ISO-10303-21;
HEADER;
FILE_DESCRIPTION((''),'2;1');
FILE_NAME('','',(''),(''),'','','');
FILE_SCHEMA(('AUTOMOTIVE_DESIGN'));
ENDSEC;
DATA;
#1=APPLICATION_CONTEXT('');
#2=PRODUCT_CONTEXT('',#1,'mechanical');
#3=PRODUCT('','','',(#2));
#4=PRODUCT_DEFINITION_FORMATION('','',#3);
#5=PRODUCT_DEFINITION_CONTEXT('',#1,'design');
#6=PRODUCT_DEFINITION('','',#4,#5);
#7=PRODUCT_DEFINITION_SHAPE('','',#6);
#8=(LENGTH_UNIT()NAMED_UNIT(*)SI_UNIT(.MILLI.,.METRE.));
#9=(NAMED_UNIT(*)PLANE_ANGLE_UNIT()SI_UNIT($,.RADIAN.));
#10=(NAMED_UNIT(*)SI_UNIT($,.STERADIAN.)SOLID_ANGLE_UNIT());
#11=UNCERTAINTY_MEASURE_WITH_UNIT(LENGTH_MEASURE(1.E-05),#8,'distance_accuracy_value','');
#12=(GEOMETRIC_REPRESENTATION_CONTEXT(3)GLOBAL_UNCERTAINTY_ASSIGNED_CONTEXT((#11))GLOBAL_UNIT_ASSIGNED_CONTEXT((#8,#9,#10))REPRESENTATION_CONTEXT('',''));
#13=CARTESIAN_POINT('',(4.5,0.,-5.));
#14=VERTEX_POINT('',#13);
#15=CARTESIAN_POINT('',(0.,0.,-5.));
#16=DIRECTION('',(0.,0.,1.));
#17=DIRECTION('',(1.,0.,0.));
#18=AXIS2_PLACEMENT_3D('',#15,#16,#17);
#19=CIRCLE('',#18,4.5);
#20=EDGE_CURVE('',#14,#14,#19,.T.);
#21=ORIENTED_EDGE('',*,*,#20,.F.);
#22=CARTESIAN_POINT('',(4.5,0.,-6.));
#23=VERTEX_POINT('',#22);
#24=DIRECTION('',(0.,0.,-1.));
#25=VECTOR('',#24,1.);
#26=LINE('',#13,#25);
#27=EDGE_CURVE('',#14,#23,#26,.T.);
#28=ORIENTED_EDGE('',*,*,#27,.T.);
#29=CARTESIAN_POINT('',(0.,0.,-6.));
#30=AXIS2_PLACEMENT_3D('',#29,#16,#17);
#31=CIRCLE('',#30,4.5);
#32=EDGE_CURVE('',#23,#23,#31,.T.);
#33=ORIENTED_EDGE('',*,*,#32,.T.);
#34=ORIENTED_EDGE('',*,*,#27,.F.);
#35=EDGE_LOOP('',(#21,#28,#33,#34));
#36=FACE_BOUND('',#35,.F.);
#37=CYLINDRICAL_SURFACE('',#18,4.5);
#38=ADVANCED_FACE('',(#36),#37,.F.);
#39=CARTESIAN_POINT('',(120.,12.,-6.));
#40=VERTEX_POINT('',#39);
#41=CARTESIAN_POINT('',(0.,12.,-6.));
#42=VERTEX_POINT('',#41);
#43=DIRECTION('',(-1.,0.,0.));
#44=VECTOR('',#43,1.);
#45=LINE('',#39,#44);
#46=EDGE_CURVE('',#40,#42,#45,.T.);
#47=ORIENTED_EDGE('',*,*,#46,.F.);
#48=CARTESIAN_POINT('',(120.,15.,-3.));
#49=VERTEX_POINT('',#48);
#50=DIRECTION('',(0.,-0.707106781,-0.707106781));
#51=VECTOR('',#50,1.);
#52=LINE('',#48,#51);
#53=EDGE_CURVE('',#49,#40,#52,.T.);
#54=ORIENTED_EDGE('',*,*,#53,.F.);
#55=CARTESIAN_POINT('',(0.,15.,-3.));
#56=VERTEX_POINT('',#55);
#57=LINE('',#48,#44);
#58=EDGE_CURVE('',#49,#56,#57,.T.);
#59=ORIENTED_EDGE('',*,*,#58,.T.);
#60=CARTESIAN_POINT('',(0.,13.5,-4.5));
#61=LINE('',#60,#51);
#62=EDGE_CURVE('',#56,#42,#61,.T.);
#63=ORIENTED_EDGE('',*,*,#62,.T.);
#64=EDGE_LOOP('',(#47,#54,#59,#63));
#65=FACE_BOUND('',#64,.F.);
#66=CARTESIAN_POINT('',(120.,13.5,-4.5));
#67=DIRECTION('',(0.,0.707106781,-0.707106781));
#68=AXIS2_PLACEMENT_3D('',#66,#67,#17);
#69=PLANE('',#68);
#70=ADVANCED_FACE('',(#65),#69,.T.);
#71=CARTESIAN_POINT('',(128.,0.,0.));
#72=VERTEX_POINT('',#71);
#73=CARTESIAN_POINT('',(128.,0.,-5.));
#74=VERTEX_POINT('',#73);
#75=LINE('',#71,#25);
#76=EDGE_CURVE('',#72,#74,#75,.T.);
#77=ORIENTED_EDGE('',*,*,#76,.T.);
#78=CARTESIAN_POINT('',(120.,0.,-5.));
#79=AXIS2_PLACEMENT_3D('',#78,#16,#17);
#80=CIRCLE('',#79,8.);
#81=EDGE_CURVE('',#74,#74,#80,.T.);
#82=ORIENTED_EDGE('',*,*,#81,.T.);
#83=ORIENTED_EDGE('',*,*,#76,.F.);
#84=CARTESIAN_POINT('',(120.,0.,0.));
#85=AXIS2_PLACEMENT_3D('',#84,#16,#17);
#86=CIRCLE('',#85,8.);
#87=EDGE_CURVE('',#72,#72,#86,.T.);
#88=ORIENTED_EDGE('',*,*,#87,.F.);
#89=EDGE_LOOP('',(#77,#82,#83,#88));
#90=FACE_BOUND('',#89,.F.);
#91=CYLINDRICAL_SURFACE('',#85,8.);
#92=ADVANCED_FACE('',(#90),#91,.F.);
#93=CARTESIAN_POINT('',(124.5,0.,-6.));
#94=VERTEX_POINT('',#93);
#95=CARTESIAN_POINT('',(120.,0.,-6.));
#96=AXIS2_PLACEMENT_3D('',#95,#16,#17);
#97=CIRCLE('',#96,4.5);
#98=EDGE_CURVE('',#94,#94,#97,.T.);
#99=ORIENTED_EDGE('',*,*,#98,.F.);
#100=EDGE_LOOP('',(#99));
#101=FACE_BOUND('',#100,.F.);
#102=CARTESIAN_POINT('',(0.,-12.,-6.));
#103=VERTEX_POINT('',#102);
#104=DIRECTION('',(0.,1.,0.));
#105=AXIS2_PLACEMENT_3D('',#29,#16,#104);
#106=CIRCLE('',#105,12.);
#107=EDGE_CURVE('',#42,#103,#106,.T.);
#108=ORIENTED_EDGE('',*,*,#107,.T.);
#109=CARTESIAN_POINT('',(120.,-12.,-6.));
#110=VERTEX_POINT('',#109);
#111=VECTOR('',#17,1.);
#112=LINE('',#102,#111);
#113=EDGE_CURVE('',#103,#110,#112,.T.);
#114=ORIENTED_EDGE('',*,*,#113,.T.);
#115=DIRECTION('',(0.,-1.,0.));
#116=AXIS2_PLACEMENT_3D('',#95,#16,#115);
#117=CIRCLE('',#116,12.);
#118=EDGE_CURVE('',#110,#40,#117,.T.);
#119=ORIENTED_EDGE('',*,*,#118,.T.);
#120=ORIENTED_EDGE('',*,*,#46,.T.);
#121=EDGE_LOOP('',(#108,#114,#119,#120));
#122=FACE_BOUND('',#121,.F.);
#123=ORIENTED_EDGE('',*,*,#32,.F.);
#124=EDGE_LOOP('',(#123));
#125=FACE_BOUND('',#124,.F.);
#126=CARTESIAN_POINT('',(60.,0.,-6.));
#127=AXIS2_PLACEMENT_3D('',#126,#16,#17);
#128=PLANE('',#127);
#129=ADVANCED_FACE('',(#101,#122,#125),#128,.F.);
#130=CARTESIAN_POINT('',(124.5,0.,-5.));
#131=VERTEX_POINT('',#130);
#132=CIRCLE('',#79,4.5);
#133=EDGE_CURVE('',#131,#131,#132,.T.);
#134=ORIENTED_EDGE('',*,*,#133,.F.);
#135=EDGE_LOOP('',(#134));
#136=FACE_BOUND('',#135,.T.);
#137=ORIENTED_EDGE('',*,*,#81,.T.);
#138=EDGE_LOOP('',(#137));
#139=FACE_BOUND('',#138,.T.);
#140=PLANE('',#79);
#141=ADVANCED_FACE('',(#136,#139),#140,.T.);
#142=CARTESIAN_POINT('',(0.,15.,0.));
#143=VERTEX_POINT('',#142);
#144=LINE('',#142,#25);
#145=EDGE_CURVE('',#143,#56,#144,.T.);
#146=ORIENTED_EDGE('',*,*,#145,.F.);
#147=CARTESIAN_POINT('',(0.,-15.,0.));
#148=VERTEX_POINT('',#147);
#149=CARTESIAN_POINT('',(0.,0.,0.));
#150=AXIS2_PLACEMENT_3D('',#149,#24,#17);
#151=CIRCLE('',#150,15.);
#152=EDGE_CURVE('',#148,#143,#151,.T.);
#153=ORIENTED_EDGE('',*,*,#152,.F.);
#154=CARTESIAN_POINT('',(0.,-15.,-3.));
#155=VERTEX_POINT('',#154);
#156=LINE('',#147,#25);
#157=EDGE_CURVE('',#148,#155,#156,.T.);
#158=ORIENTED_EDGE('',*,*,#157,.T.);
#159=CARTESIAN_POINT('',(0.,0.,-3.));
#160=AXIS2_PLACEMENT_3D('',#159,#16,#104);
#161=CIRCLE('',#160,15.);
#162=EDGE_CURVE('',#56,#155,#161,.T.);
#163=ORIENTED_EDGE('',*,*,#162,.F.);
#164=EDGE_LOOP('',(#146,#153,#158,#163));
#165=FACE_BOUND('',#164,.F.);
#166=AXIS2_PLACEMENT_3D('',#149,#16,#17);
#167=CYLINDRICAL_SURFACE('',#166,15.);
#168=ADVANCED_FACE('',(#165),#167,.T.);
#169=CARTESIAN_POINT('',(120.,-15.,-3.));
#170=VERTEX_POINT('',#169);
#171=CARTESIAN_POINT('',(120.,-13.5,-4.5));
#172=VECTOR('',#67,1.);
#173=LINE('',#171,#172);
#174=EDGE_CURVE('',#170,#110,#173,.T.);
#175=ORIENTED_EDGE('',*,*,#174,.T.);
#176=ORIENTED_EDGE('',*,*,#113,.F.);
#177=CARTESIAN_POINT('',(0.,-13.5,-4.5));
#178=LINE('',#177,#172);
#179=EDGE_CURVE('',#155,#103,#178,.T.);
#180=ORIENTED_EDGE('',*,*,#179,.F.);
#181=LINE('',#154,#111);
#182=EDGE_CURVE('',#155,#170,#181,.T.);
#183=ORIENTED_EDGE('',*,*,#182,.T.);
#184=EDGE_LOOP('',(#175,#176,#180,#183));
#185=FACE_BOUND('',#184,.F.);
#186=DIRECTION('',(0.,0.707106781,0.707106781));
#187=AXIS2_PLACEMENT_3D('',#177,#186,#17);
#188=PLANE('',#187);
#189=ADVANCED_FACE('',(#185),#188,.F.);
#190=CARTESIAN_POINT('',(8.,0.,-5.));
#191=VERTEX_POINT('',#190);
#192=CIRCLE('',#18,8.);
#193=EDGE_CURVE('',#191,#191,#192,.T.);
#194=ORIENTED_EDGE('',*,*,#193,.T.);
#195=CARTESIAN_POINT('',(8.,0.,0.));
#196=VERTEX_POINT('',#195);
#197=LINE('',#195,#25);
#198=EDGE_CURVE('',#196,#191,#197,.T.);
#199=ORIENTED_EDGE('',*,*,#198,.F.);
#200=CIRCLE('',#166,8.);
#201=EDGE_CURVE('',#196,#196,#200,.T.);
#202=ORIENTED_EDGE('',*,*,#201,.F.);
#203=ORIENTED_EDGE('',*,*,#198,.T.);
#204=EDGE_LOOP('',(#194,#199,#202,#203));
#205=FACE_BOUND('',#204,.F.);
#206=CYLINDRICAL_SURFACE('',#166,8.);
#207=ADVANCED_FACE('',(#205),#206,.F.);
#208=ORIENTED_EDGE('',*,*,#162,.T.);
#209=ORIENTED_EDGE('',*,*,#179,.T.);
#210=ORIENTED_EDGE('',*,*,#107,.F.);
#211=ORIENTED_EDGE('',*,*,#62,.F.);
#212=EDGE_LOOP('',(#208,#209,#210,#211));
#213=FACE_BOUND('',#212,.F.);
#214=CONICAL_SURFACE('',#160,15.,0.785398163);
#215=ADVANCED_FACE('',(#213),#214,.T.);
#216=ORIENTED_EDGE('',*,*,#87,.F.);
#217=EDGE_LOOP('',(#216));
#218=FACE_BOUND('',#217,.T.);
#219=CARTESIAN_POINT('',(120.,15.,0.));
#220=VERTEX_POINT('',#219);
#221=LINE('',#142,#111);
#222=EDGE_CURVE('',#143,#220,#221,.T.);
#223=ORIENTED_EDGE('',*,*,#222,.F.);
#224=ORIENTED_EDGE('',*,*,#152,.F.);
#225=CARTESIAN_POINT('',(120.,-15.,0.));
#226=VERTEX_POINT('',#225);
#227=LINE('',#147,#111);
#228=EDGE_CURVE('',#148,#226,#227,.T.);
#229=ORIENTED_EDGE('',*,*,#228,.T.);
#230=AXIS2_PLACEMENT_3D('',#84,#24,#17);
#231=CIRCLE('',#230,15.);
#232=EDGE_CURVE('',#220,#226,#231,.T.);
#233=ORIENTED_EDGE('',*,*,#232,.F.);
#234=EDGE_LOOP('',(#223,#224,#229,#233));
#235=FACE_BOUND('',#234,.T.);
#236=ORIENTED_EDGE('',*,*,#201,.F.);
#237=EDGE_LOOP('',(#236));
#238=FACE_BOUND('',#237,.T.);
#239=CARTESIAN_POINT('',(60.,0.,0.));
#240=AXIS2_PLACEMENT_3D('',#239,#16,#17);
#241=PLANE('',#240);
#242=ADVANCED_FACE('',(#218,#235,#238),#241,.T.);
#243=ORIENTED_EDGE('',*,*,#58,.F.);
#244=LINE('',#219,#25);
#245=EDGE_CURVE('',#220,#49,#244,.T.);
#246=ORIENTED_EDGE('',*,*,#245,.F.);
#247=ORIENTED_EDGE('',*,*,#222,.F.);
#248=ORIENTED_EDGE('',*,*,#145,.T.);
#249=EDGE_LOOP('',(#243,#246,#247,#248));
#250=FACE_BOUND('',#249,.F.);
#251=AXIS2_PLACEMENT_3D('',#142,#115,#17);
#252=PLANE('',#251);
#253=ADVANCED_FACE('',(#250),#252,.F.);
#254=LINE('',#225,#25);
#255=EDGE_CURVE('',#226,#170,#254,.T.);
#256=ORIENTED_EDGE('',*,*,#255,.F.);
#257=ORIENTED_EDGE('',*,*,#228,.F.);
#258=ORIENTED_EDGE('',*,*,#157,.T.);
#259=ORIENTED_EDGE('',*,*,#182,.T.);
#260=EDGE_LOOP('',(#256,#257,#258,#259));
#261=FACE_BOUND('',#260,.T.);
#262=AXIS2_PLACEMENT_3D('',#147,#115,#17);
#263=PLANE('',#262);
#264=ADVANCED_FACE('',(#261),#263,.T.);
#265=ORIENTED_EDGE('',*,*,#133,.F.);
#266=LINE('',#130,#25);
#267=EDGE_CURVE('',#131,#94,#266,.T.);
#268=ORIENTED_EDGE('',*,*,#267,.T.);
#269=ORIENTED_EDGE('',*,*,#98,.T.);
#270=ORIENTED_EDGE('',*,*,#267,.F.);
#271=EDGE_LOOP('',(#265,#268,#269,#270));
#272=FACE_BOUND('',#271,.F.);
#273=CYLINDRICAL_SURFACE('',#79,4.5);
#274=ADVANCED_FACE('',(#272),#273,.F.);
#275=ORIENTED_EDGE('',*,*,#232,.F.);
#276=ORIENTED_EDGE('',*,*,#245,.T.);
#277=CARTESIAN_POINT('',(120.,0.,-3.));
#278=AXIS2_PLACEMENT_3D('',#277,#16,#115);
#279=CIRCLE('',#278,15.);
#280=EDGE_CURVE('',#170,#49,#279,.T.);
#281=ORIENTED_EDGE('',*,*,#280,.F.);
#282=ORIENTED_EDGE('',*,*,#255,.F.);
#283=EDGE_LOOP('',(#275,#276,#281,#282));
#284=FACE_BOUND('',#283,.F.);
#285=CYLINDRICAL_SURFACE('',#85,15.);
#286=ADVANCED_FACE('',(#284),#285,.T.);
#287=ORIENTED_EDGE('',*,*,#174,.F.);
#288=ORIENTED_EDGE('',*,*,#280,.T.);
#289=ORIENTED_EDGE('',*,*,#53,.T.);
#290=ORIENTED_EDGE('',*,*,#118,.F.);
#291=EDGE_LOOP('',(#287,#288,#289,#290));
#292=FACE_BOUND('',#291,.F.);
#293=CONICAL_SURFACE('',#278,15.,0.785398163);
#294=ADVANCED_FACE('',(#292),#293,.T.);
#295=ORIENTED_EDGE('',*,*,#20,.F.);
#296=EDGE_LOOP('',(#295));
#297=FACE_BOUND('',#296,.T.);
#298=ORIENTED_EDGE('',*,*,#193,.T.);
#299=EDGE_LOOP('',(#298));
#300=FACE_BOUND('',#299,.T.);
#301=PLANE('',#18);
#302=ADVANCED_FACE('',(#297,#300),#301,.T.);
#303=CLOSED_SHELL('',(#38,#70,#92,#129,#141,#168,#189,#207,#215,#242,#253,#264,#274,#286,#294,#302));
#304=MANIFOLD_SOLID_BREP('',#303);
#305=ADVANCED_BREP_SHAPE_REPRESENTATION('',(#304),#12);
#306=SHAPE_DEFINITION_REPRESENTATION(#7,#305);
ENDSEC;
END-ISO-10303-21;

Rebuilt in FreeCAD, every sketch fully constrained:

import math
import FreeCAD as App
import Part
import Sketcher


def edges_at(feature, points):
    """Names of the edges that pass closest to the given points."""
    edges = feature.Shape.Edges
    near = lambda p: min(range(len(edges)), key=lambda i: edges[i].distToShape(Part.Vertex(*p))[0])
    return sorted({f"Edge{near(p) + 1}" for p in points})

doc = App.newDocument("Part")
body = doc.addObject("PartDesign::Body", "Body")

# Sketch on XY plane
sketch1 = doc.addObject("Sketcher::SketchObject", "Sketch")
body.addObject(sketch1)
sketch1.AttachmentSupport = (doc.XY_Plane, [""])
sketch1.MapMode = "FlatFace"
sketch1.addGeometry(Part.ArcOfCircle(Part.Circle(App.Vector(0, 0, 0), App.Vector(0, 0, 1), 15), math.radians(90), math.radians(270)), False)
sketch1.addGeometry(Part.LineSegment(App.Vector(0, -15, 0), App.Vector(120, -15, 0)), False)
sketch1.addGeometry(Part.ArcOfCircle(Part.Circle(App.Vector(120, 0, 0), App.Vector(0, 0, 1), 15), math.radians(-90), math.radians(90)), False)
sketch1.addGeometry(Part.LineSegment(App.Vector(120, 15, 0), App.Vector(0, 15, 0)), False)
sketch1.addConstraint(Sketcher.Constraint("Tangent", 0, 2, 1, 1))
sketch1.addConstraint(Sketcher.Constraint("Tangent", 1, 2, 2, 1))
sketch1.addConstraint(Sketcher.Constraint("Tangent", 2, 2, 3, 1))
sketch1.addConstraint(Sketcher.Constraint("Tangent", 3, 2, 0, 1))
sketch1.addConstraint(Sketcher.Constraint("Horizontal", 1))
sketch1.addConstraint(Sketcher.Constraint("Horizontal", 3))
sketch1.addConstraint(Sketcher.Constraint("Coincident", 0, 3, -1, 1))
sketch1.addConstraint(Sketcher.Constraint("Radius", 0, 15.0))
sketch1.addConstraint(Sketcher.Constraint("DistanceX", 1, 1, 1, 2, 120.0))
pad1 = doc.addObject("PartDesign::Pad", "Pad")
body.addObject(pad1)
pad1.Profile = sketch1
pad1.Length = 6
pad1.Reversed = True

# Sketch on XY plane
sketch2 = doc.addObject("Sketcher::SketchObject", "Sketch001")
body.addObject(sketch2)
sketch2.AttachmentSupport = (doc.XY_Plane, [""])
sketch2.MapMode = "FlatFace"
sketch2.addGeometry(Part.Circle(App.Vector(0, 0, 0), App.Vector(0, 0, 1), 8), False)
sketch2.addGeometry(Part.Circle(App.Vector(120, 0, 0), App.Vector(0, 0, 1), 8), False)
sketch2.addConstraint(Sketcher.Constraint("Coincident", 0, 3, -1, 1))
sketch2.addConstraint(Sketcher.Constraint("Equal", 0, 1))
sketch2.addConstraint(Sketcher.Constraint("PointOnObject", 1, 3, -1))
sketch2.addConstraint(Sketcher.Constraint("Diameter", 0, 16.0))
sketch2.addConstraint(Sketcher.Constraint("DistanceX", -1, 1, 1, 3, 120.0))
pocket1 = doc.addObject("PartDesign::Pocket", "Pocket")
body.addObject(pocket1)
pocket1.Profile = sketch2
pocket1.Length = 5

# Sketch on XY plane
sketch3 = doc.addObject("Sketcher::SketchObject", "Sketch002")
body.addObject(sketch3)
sketch3.AttachmentSupport = (doc.XY_Plane, [""])
sketch3.MapMode = "FlatFace"
sketch3.AttachmentOffset = App.Placement(App.Vector(0, 0, -5), App.Rotation())
sketch3.addGeometry(Part.Circle(App.Vector(0, 0, 0), App.Vector(0, 0, 1), 4.5), False)
sketch3.addGeometry(Part.Circle(App.Vector(120, 0, 0), App.Vector(0, 0, 1), 4.5), False)
sketch3.addConstraint(Sketcher.Constraint("Coincident", 0, 3, -1, 1))
sketch3.addConstraint(Sketcher.Constraint("Equal", 0, 1))
sketch3.addConstraint(Sketcher.Constraint("PointOnObject", 1, 3, -1))
sketch3.addConstraint(Sketcher.Constraint("Diameter", 0, 9.0))
sketch3.addConstraint(Sketcher.Constraint("DistanceX", -1, 1, 1, 3, 120.0))
pocket2 = doc.addObject("PartDesign::Pocket", "Pocket001")
body.addObject(pocket2)
pocket2.Profile = sketch3
pocket2.Type = "ThroughAll"
doc.recompute()

chamfer = doc.addObject("PartDesign::Chamfer", "Chamfer")
body.addObject(chamfer)
chamfer.Base = (pocket2, edges_at(pocket2, [
    (60, -15, -6),
    (135, 0, -6),
    (60, 15, -6),
    (-15, 0, -6),
]))
chamfer.Size = 3

doc.recompute()
